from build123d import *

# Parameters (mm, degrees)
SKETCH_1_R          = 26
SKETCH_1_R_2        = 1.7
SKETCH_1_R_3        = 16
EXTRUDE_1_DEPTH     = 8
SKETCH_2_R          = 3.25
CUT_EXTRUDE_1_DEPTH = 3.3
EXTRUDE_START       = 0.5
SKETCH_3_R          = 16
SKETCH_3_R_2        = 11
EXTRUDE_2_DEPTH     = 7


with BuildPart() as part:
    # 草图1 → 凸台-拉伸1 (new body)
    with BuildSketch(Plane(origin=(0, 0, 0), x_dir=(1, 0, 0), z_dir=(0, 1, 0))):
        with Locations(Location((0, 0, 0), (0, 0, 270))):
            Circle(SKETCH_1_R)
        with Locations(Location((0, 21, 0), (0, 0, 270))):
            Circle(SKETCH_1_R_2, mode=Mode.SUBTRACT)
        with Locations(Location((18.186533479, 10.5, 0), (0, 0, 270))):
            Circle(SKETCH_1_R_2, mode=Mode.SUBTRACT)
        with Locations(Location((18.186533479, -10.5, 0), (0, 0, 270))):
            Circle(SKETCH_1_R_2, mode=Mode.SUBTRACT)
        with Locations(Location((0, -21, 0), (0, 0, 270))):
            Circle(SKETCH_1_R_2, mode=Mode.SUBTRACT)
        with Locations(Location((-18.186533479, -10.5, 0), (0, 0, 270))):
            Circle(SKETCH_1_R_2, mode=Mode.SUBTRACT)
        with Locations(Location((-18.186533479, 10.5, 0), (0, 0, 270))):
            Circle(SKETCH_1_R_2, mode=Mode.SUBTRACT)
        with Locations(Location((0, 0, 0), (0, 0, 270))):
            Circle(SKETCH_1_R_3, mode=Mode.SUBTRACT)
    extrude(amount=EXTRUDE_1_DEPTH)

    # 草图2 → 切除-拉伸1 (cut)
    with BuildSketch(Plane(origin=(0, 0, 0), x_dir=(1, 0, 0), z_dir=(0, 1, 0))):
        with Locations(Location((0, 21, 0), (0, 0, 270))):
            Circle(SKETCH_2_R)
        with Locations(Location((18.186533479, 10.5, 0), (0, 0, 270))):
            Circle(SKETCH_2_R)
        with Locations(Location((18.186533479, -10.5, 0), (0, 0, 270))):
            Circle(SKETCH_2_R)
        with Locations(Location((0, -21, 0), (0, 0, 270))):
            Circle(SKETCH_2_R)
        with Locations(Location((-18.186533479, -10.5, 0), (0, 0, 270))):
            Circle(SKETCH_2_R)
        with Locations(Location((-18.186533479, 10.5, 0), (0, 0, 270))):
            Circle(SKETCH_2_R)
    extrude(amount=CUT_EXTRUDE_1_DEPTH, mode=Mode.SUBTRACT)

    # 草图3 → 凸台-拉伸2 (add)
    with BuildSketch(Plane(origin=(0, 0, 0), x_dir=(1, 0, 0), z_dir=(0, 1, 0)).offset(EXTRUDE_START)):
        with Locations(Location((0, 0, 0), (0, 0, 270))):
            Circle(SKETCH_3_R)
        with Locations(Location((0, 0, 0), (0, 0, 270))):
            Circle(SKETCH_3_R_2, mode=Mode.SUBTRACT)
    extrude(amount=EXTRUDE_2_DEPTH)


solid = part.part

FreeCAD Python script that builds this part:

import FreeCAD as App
import Part
import Sketcher
from FreeCAD import Vector

doc = App.newDocument("Part")
body = doc.addObject("PartDesign::Body", "Body")

# Sketch on XZ plane
sketch1 = body.newObject("Sketcher::SketchObject", "Sketch")
sketch1.AttachmentSupport = (doc.getObject("XZ_Plane"), [""])
sketch1.MapMode = "FlatFace"
sketch1.addGeometry(Part.Circle(Vector(0, 0, 0), Vector(0, 0, 1), 26), False)
sketch1.addGeometry(Part.Circle(Vector(-18.186533, -10.5, 0), Vector(0, 0, 1), 1.7), False)
sketch1.addGeometry(Part.Circle(Vector(0, -21, 0), Vector(0, 0, 1), 1.7), False)
sketch1.addGeometry(Part.Circle(Vector(-18.186533, 10.5, 0), Vector(0, 0, 1), 1.7), False)
sketch1.addGeometry(Part.Circle(Vector(18.186533, -10.5, 0), Vector(0, 0, 1), 1.7), False)
sketch1.addGeometry(Part.Circle(Vector(0, 0, 0), Vector(0, 0, 1), 16), False)
sketch1.addGeometry(Part.Circle(Vector(0, 21, 0), Vector(0, 0, 1), 1.7), False)
sketch1.addGeometry(Part.Circle(Vector(18.186533, 10.5, 0), Vector(0, 0, 1), 1.7), False)
sketch1.addConstraint(Sketcher.Constraint("Coincident", 0, 3, -1, 1))
sketch1.addConstraint(Sketcher.Constraint("Coincident", 5, 3, -1, 1))
sketch1.addConstraint(Sketcher.Constraint("Equal", 1, 2))
sketch1.addConstraint(Sketcher.Constraint("Equal", 2, 3))
sketch1.addConstraint(Sketcher.Constraint("Equal", 3, 4))
sketch1.addConstraint(Sketcher.Constraint("Equal", 4, 6))
sketch1.addConstraint(Sketcher.Constraint("Equal", 6, 7))
sketch1.addConstraint(Sketcher.Constraint("Symmetric", 3, 3, 4, 3, -1, 1))
sketch1.addConstraint(Sketcher.Constraint("Symmetric", 2, 3, 6, 3, -1, 1))
sketch1.addConstraint(Sketcher.Constraint("Symmetric", 1, 3, 7, 3, -1, 1))
sketch1.addConstraint(Sketcher.Constraint("Symmetric", 1, 3, 4, 3, -2))
sketch1.addConstraint(Sketcher.Constraint("PointOnObject", 2, 3, -2))
sketch1.addConstraint(Sketcher.Constraint("Diameter", 0, 52.0))
sketch1.addConstraint(Sketcher.Constraint("Diameter", 5, 32.0))
sketch1.addConstraint(Sketcher.Constraint("Diameter", 1, 3.4))
sketch1.addConstraint(Sketcher.Constraint("DistanceY", 2, 3, -1, 1, 21.0))
sketch1.addConstraint(Sketcher.Constraint("DistanceY", 1, 3, 3, 3, 21.0))
sketch1.addConstraint(Sketcher.Constraint("DistanceX", 1, 3, -1, 1, 18.186533))
pad1 = body.newObject("PartDesign::Pad", "Pad")
pad1.Profile = sketch1
pad1.Length = 8
pad1.Reversed = True

# Sketch on XZ plane
sketch2 = body.newObject("Sketcher::SketchObject", "Sketch001")
sketch2.AttachmentSupport = (doc.getObject("XZ_Plane"), [""])
sketch2.MapMode = "FlatFace"
sketch2.addGeometry(Part.Circle(Vector(0, -21, 0), Vector(0, 0, 1), 3.25), False)
sketch2.addGeometry(Part.Circle(Vector(18.186533, -10.5, 0), Vector(0, 0, 1), 3.25), False)
sketch2.addGeometry(Part.Circle(Vector(18.186533, 10.5, 0), Vector(0, 0, 1), 3.25), False)
sketch2.addGeometry(Part.Circle(Vector(0, 21, 0), Vector(0, 0, 1), 3.25), False)
sketch2.addGeometry(Part.Circle(Vector(-18.186533, 10.5, 0), Vector(0, 0, 1), 3.25), False)
sketch2.addGeometry(Part.Circle(Vector(-18.186533, -10.5, 0), Vector(0, 0, 1), 3.25), False)
sketch2.addConstraint(Sketcher.Constraint("Equal", 0, 1))
sketch2.addConstraint(Sketcher.Constraint("Equal", 1, 2))
sketch2.addConstraint(Sketcher.Constraint("Equal", 2, 3))
sketch2.addConstraint(Sketcher.Constraint("Equal", 3, 4))
sketch2.addConstraint(Sketcher.Constraint("Equal", 4, 5))
sketch2.addConstraint(Sketcher.Constraint("Symmetric", 0, 3, 3, 3, -1, 1))
sketch2.addConstraint(Sketcher.Constraint("Symmetric", 1, 3, 4, 3, -1, 1))
sketch2.addConstraint(Sketcher.Constraint("Symmetric", 2, 3, 5, 3, -1, 1))
sketch2.addConstraint(Sketcher.Constraint("Symmetric", 2, 3, 4, 3, -2))
sketch2.addConstraint(Sketcher.Constraint("PointOnObject", 0, 3, -2))
sketch2.addConstraint(Sketcher.Constraint("Diameter", 0, 6.5))
sketch2.addConstraint(Sketcher.Constraint("DistanceY", 0, 3, -1, 1, 21.0))
sketch2.addConstraint(Sketcher.Constraint("DistanceY", 1, 3, 2, 3, 21.0))
sketch2.addConstraint(Sketcher.Constraint("DistanceX", -1, 1, 1, 3, 18.186533))
pocket1 = body.newObject("PartDesign::Pocket", "Pocket")
pocket1.Profile = sketch2
pocket1.Length = 3.3

# Sketch on XZ plane
sketch3 = body.newObject("Sketcher::SketchObject", "Sketch002")
sketch3.AttachmentSupport = (doc.getObject("XZ_Plane"), [""])
sketch3.MapMode = "FlatFace"
sketch3.AttachmentOffset = App.Placement(Vector(0, 0, -0.5), App.Rotation())
sketch3.addGeometry(Part.Circle(Vector(0, 0, 0), Vector(0, 0, 1), 16), False)
sketch3.addGeometry(Part.Circle(Vector(0, 0, 0), Vector(0, 0, 1), 11), False)
sketch3.addConstraint(Sketcher.Constraint("Coincident", 0, 3, -1, 1))
sketch3.addConstraint(Sketcher.Constraint("Coincident", 1, 3, -1, 1))
sketch3.addConstraint(Sketcher.Constraint("Diameter", 0, 32.0))
sketch3.addConstraint(Sketcher.Constraint("Diameter", 1, 22.0))
pad2 = body.newObject("PartDesign::Pad", "Pad001")
pad2.Profile = sketch3
pad2.Length = 7
pad2.Reversed = True

doc.recompute()
